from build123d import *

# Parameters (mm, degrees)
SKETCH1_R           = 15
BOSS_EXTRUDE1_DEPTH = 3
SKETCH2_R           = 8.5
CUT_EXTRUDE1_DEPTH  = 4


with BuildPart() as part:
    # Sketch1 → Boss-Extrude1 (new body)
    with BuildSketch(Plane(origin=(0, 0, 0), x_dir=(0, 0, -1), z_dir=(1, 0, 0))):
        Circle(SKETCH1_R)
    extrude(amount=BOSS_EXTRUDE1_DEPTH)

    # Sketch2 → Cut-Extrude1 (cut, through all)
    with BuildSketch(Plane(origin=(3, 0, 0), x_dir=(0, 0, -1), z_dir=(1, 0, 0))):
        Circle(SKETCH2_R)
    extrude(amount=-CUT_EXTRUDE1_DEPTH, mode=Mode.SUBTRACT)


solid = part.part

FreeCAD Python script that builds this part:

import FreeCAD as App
import Part
import Sketcher

V = App.Vector
Q = App.Units.Quantity

doc = App.newDocument("Part")
params = doc.addObject("Spreadsheet::Sheet", "Params")
for row, (alias, value) in enumerate([
    ("sketch1_diameter", "30 mm"),
    ("pad1_length", "3 mm"),
    ("sketch2_diameter", "17 mm"),
], start=1):
    params.set(f"A{row}", alias)
    params.set(f"B{row}", "=" + value)
    params.setAlias(f"B{row}", alias)

body = doc.addObject("PartDesign::Body", "Body")

sketch1 = body.newObject("Sketcher::SketchObject", "Sketch")
sketch1.AttachmentSupport = (doc.getObject("YZ_Plane"), [""])
sketch1.MapMode = "FlatFace"
sketch1.addGeometry(Part.Circle(V(0, 0, 0), V(0, 0, 1), 15), False)
sketch1.addConstraint(Sketcher.Constraint("Coincident", 0, 3, -1, 1))
sketch1.addConstraint(Sketcher.Constraint("Diameter", 0, Q("30 mm")))
sketch1.setExpression("Constraints[1]", "Params.sketch1_diameter")
pad1 = body.newObject("PartDesign::Pad", "Pad")
pad1.Profile = sketch1
pad1.setExpression("Length", "Params.pad1_length")

sketch2 = body.newObject("Sketcher::SketchObject", "Sketch001")
sketch2.AttachmentSupport = (doc.getObject("YZ_Plane"), [""])
sketch2.MapMode = "FlatFace"
sketch2.AttachmentOffset = App.Placement(V(0, 0, 3), App.Rotation())
sketch2.addGeometry(Part.Circle(V(0, 0, 0), V(0, 0, 1), 8.5), False)
sketch2.addConstraint(Sketcher.Constraint("Coincident", 0, 3, -1, 1))
sketch2.addConstraint(Sketcher.Constraint("Diameter", 0, Q("17 mm")))
sketch2.setExpression("Constraints[1]", "Params.sketch2_diameter")
pocket1 = body.newObject("PartDesign::Pocket", "Pocket")
pocket1.Profile = sketch2
pocket1.Type = "ThroughAll"

doc.recompute()
